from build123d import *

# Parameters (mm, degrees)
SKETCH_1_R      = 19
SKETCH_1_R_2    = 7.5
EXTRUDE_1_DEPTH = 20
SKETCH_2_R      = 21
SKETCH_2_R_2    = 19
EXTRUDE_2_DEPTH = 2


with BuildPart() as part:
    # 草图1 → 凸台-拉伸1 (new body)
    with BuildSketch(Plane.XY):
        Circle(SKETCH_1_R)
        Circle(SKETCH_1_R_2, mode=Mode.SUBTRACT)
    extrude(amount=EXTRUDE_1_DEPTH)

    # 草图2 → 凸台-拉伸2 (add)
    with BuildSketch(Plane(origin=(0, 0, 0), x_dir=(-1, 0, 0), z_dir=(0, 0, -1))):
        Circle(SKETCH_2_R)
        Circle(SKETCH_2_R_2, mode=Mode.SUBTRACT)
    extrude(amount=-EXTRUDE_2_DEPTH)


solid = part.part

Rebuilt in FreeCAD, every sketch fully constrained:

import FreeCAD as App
import Part
import Sketcher

V = App.Vector

doc = App.newDocument("Part")
params = doc.addObject("Spreadsheet::Sheet", "Params")
for row, (alias, value) in enumerate([
    ("sketch1_diameter", "38 mm"),
    ("sketch1_diameter2", "15 mm"),
    ("pad1_length", "20 mm"),
    ("sketch2_diameter", "42 mm"),
    ("sketch2_diameter2", "38 mm"),
    ("pad2_length", "2 mm"),
], start=1):
    params.set(f"A{row}", alias)
    params.set(f"B{row}", "=" + value)
    params.setAlias(f"B{row}", alias)

body = doc.addObject("PartDesign::Body", "Body")

# Sketch on XY plane
sketch1 = body.newObject("Sketcher::SketchObject", "Sketch")
sketch1.AttachmentSupport = (doc.getObject("XY_Plane"), [""])
sketch1.MapMode = "FlatFace"
sketch1.addGeometry([
    Part.Circle(V(0, 0, 0), V(0, 0, 1), 19),
    Part.Circle(V(0, 0, 0), V(0, 0, 1), 8),
], False)
sketch1.addConstraint([
    Sketcher.Constraint("Coincident", 0, 3, -1, 1),
    Sketcher.Constraint("Coincident", 1, 3, -1, 1),
    Sketcher.Constraint("Diameter", 0, 38.0),
    Sketcher.Constraint("Diameter", 1, 15.0),
])
sketch1.setExpression("Constraints[2]", "Params.sketch1_diameter")
sketch1.setExpression("Constraints[3]", "Params.sketch1_diameter2")
pad1 = body.newObject("PartDesign::Pad", "Pad")
pad1.Profile = sketch1
pad1.setExpression("Length", "Params.pad1_length")

# Sketch on XY plane
sketch2 = body.newObject("Sketcher::SketchObject", "Sketch001")
sketch2.AttachmentSupport = (doc.getObject("XY_Plane"), [""])
sketch2.MapMode = "FlatFace"
sketch2.addGeometry([
    Part.Circle(V(0, 0, 0), V(0, 0, 1), 21),
    Part.Circle(V(0, 0, 0), V(0, 0, 1), 19),
], False)
sketch2.addConstraint([
    Sketcher.Constraint("Coincident", 0, 3, -1, 1),
    Sketcher.Constraint("Coincident", 1, 3, -1, 1),
    Sketcher.Constraint("Diameter", 0, 42.0),
    Sketcher.Constraint("Diameter", 1, 38.0),
])
sketch2.setExpression("Constraints[2]", "Params.sketch2_diameter")
sketch2.setExpression("Constraints[3]", "Params.sketch2_diameter2")
pad2 = body.newObject("PartDesign::Pad", "Pad001")
pad2.Profile = sketch2
pad2.setExpression("Length", "Params.pad2_length")

doc.recompute()
